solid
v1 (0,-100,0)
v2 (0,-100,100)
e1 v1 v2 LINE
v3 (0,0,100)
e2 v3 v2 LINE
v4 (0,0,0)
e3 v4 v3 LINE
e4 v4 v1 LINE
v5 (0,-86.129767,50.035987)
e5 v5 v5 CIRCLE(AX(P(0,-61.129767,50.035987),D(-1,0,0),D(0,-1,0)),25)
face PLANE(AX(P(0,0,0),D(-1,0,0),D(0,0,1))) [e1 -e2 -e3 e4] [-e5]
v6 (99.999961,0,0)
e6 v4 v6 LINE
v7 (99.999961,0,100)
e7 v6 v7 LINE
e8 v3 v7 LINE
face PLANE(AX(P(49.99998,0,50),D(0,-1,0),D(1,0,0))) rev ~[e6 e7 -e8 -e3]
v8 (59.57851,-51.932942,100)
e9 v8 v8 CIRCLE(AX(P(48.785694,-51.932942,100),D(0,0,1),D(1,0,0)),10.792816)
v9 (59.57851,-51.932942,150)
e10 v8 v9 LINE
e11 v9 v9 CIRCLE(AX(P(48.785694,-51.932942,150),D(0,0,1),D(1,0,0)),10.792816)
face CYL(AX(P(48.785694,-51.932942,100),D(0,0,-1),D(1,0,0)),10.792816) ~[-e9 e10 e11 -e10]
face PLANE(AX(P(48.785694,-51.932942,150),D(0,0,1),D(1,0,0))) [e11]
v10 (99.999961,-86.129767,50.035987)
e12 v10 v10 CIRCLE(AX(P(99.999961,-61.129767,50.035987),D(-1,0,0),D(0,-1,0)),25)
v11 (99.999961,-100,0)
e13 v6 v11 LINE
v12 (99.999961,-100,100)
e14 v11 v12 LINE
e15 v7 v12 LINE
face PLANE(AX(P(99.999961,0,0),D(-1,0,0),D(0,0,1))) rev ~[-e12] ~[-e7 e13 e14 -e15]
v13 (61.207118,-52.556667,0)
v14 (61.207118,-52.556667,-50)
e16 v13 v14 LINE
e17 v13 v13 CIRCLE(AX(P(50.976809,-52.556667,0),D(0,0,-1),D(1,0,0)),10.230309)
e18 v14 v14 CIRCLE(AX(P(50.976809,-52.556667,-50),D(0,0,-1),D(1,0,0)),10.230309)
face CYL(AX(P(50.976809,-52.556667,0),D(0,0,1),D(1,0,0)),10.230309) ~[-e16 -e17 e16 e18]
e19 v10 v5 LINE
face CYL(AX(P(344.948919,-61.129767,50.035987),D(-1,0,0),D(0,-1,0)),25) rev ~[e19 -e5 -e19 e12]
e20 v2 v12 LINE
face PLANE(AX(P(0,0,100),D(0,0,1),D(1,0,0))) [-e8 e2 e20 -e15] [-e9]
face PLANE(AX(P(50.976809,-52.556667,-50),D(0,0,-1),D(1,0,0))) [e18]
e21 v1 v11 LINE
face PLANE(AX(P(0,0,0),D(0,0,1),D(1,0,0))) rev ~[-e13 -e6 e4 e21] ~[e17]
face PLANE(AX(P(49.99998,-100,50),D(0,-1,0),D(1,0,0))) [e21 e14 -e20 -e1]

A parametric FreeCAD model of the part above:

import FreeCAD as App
import Part
import Sketcher

V = App.Vector


def add_polygon(sketch, points):
    """Adds a closed chain of lines whose ends are joined by coincident constraints."""
    first, n = sketch.GeometryCount, len(points)
    for a, b in zip(points, points[1:] + points[:1]):
        sketch.addGeometry(Part.LineSegment(App.Vector(*a, 0), App.Vector(*b, 0)), False)
    for i in range(n):
        sketch.addConstraint(Sketcher.Constraint("Coincident", first + i, 2, first + (i + 1) % n, 1))

doc = App.newDocument("Part")
body = doc.addObject("PartDesign::Body", "Body")

sketch1 = body.newObject("Sketcher::SketchObject", "Sketch")
sketch1.AttachmentSupport = (doc.getObject("XZ_Plane"), [""])
sketch1.MapMode = "FlatFace"
add_polygon(sketch1, [(0, 100), (0, 0), (99.999961, 0), (99.999961, 100)])
sketch1.addConstraint(Sketcher.Constraint("Vertical", 0))
sketch1.addConstraint(Sketcher.Constraint("Horizontal", 1))
sketch1.addConstraint(Sketcher.Constraint("Vertical", 2))
sketch1.addConstraint(Sketcher.Constraint("Horizontal", 3))
sketch1.addConstraint(Sketcher.Constraint("Coincident", 0, 2, -1, 1))
sketch1.addConstraint(Sketcher.Constraint("DistanceY", 0, 2, 0, 1, 100.0))
sketch1.addConstraint(Sketcher.Constraint("DistanceX", 1, 1, 1, 2, 99.999961))
pad1 = body.newObject("PartDesign::Pad", "Pad")
pad1.Profile = sketch1
pad1.Length = 100

sketch2 = body.newObject("Sketcher::SketchObject", "Sketch001")
sketch2.AttachmentSupport = (doc.getObject("XY_Plane"), [""])
sketch2.MapMode = "FlatFace"
sketch2.AttachmentOffset = App.Placement(V(0, 0, 100), App.Rotation())
sketch2.addGeometry(Part.Circle(V(49, -52, 0), V(0, 0, 1), 11), False)
sketch2.addConstraint(Sketcher.Constraint("Diameter", 0, 21.585632))
sketch2.addConstraint(Sketcher.Constraint("DistanceY", 0, 3, -1, 1, 51.932942))
sketch2.addConstraint(Sketcher.Constraint("DistanceX", -1, 1, 0, 3, 48.785694))
pad2 = body.newObject("PartDesign::Pad", "Pad001")
pad2.Profile = sketch2
pad2.Length = 50

sketch3 = body.newObject("Sketcher::SketchObject", "Sketch002")
sketch3.AttachmentSupport = (doc.getObject("XY_Plane"), [""])
sketch3.MapMode = "FlatFace"
sketch3.addGeometry(Part.Circle(V(51, -53, 0), V(0, 0, 1), 10), False)
sketch3.addConstraint(Sketcher.Constraint("Diameter", 0, 20.460618))
sketch3.addConstraint(Sketcher.Constraint("DistanceX", -1, 1, 0, 3, 50.976809))
sketch3.addConstraint(Sketcher.Constraint("DistanceY", 0, 3, -1, 1, 52.556667))
pad3 = body.newObject("PartDesign::Pad", "Pad002")
pad3.Profile = sketch3
pad3.Length = 50
pad3.Reversed = True

sketch4 = body.newObject("Sketcher::SketchObject", "Sketch003")
sketch4.AttachmentSupport = (doc.getObject("YZ_Plane"), [""])
sketch4.MapMode = "FlatFace"
sketch4.AttachmentOffset = App.Placement(V(0, 0, 99.999961), App.Rotation())
sketch4.addGeometry(Part.Circle(V(-61, 50, 0), V(0, 0, 1), 25), False)
sketch4.addConstraint(Sketcher.Constraint("Diameter", 0, 50.0))
sketch4.addConstraint(Sketcher.Constraint("DistanceX", 0, 3, -1, 1, 61.129767))
sketch4.addConstraint(Sketcher.Constraint("DistanceY", -1, 1, 0, 3, 50.035987))
doc.recompute()
hole = body.newObject("PartDesign::Hole", "Hole")
hole.Profile = sketch4
hole.ThreadType = "None"
hole.Diameter = 50
hole.DepthType = "ThroughAll"

doc.recompute()
